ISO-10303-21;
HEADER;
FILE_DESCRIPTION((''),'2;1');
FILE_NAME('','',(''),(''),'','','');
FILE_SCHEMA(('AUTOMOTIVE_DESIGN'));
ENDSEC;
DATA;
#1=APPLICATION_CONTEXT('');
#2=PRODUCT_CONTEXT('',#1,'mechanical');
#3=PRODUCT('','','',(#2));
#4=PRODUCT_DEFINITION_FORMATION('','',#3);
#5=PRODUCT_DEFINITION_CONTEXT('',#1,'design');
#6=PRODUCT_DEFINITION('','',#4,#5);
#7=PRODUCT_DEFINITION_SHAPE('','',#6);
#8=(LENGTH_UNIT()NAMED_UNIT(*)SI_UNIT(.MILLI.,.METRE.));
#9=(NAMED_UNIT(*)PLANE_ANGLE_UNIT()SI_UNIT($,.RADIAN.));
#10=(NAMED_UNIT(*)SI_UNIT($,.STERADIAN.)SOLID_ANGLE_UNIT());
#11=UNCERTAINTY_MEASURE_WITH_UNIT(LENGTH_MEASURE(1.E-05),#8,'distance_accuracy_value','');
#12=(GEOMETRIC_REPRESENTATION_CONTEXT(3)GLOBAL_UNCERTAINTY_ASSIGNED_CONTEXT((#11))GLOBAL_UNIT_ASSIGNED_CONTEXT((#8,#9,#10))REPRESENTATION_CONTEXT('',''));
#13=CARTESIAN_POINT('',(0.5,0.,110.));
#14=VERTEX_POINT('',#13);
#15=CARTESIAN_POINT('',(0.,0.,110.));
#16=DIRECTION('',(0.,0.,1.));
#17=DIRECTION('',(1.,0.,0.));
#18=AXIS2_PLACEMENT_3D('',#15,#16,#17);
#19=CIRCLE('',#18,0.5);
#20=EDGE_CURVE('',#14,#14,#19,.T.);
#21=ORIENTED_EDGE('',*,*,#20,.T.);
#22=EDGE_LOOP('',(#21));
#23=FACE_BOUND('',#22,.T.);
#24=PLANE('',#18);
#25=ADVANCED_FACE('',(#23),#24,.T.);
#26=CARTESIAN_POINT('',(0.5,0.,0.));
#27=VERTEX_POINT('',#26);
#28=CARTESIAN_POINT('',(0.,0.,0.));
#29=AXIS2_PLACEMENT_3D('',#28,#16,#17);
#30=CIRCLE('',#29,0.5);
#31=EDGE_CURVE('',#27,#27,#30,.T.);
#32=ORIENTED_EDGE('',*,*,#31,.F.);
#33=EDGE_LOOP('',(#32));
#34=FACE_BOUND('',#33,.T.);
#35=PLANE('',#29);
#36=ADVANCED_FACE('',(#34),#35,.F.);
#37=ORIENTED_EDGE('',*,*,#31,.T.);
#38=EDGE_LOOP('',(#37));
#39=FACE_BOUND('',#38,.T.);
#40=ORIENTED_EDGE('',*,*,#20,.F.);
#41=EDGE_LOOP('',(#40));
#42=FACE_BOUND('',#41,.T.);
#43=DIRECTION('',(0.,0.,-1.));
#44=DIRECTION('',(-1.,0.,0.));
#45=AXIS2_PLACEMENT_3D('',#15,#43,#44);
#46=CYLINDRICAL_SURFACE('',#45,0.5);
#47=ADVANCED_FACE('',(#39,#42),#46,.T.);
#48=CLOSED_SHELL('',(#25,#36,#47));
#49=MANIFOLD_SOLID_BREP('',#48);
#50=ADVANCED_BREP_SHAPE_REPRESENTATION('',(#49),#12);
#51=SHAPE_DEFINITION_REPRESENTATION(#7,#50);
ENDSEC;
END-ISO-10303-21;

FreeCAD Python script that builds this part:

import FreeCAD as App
import Part
import Sketcher

doc = App.newDocument("Part")
body = doc.addObject("PartDesign::Body", "Body")

# Sketch on XY plane
sketch1 = doc.addObject("Sketcher::SketchObject", "Sketch")
body.addObject(sketch1)
sketch1.AttachmentSupport = (doc.XY_Plane, [""])
sketch1.MapMode = "FlatFace"
sketch1.addGeometry(Part.Circle(App.Vector(0, 0, 0), App.Vector(0, 0, 1), 0.5), False)
sketch1.addConstraint([
    Sketcher.Constraint("Coincident", 0, 3, -1, 1),
    Sketcher.Constraint("Diameter", 0, 1.0),
])
pad1 = doc.addObject("PartDesign::Pad", "Pad")
body.addObject(pad1)
pad1.Profile = sketch1
pad1.Length = 110

doc.recompute()
